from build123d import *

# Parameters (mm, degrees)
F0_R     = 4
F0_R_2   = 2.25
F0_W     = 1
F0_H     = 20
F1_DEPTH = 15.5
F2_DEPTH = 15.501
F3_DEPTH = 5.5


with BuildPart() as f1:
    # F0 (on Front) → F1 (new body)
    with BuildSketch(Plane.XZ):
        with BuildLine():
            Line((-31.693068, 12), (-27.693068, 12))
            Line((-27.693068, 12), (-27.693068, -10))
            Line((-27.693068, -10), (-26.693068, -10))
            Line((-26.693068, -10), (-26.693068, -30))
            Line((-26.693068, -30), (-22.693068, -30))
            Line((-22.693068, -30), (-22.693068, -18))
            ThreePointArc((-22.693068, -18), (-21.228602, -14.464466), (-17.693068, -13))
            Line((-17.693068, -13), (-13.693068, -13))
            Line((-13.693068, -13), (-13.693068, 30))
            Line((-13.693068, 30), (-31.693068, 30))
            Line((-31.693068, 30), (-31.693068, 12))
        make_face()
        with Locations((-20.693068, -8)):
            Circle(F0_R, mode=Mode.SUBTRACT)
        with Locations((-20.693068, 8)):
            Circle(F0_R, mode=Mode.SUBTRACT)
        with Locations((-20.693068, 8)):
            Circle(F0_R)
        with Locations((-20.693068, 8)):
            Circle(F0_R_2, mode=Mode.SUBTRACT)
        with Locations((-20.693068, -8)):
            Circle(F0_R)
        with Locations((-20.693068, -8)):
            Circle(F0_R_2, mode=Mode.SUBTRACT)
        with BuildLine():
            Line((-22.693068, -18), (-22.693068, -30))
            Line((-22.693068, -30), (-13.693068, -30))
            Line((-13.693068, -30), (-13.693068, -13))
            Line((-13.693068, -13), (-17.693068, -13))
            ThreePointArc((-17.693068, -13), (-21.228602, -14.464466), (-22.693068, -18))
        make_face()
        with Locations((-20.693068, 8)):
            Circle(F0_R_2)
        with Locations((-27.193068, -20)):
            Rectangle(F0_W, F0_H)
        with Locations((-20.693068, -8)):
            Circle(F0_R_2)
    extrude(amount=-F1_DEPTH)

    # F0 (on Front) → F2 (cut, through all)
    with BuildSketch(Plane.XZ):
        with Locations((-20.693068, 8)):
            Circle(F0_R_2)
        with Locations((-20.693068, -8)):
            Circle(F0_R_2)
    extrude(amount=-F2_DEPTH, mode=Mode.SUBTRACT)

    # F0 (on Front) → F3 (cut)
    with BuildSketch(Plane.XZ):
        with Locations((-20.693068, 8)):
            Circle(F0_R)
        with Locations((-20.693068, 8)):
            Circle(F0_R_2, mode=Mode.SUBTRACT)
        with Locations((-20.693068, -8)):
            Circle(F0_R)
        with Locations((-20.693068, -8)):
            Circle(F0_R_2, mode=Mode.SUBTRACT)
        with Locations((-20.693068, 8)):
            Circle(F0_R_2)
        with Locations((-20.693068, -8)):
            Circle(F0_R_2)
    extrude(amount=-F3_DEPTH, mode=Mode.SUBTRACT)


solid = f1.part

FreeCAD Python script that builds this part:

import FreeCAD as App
import Part
import Sketcher

V = App.Vector
Q = App.Units.Quantity


def add_polygon(sketch, points):
    """Adds a closed chain of lines whose ends are joined by coincident constraints."""
    first, n = sketch.GeometryCount, len(points)
    for a, b in zip(points, points[1:] + points[:1]):
        sketch.addGeometry(Part.LineSegment(App.Vector(*a, 0), App.Vector(*b, 0)), False)
    for i in range(n):
        sketch.addConstraint(Sketcher.Constraint("Coincident", first + i, 2, first + (i + 1) % n, 1))

doc = App.newDocument("Part")
body = doc.addObject("PartDesign::Body", "Body")

sketch1 = body.newObject("Sketcher::SketchObject", "Sketch")
sketch1.AttachmentSupport = (doc.getObject("XZ_Plane"), [""])
sketch1.MapMode = "FlatFace"
add_polygon(sketch1, [(-31.7, 12), (-27.7, 12), (-27.7, -30), (-13.7, -30), (-13.7, 30), (-31.7, 30)])
sketch1.addConstraint(Sketcher.Constraint("Horizontal", 0))
sketch1.addConstraint(Sketcher.Constraint("Vertical", 1))
sketch1.addConstraint(Sketcher.Constraint("Horizontal", 2))
sketch1.addConstraint(Sketcher.Constraint("Vertical", 3))
sketch1.addConstraint(Sketcher.Constraint("Horizontal", 4))
sketch1.addConstraint(Sketcher.Constraint("Vertical", 5))
sketch1.addConstraint(Sketcher.Constraint("Equal", 4, 5))
sketch1.addConstraint(Sketcher.Constraint("DistanceX", 0, 1, 0, 2, Q("4 mm")))
sketch1.addConstraint(Sketcher.Constraint("DistanceX", 2, 1, 2, 2, Q("14 mm")))
sketch1.addConstraint(Sketcher.Constraint("DistanceY", 1, 2, 1, 1, Q("42 mm")))
sketch1.addConstraint(Sketcher.Constraint("DistanceY", -1, 1, 0, 2, Q("12 mm")))
sketch1.addConstraint(Sketcher.Constraint("DistanceX", 0, 2, -1, 1, Q("27.693068 mm")))
pad1 = body.newObject("PartDesign::Pad", "Pad")
pad1.Profile = sketch1
pad1.Length = 15.5
pad1.Reversed = True

sketch2 = body.newObject("Sketcher::SketchObject", "Sketch001")
sketch2.AttachmentSupport = (doc.getObject("XZ_Plane"), [""])
sketch2.MapMode = "FlatFace"
sketch2.addGeometry(Part.Circle(V(-20.7, 8, 0), V(0, 0, 1), 2.2), False)
sketch2.addGeometry(Part.Circle(V(-20.7, -8, 0), V(0, 0, 1), 2.2), False)
sketch2.addConstraint(Sketcher.Constraint("Equal", 0, 1))
sketch2.addConstraint(Sketcher.Constraint("Symmetric", 0, 3, 1, 3, -1))
sketch2.addConstraint(Sketcher.Constraint("Diameter", 0, Q("4.5 mm")))
sketch2.addConstraint(Sketcher.Constraint("DistanceY", -1, 1, 0, 3, Q("8 mm")))
sketch2.addConstraint(Sketcher.Constraint("DistanceX", 0, 3, -1, 1, Q("20.693068 mm")))
pocket1 = body.newObject("PartDesign::Pocket", "Pocket")
pocket1.Profile = sketch2
pocket1.Type = "ThroughAll"

sketch3 = body.newObject("Sketcher::SketchObject", "Sketch002")
sketch3.AttachmentSupport = (doc.getObject("XZ_Plane"), [""])
sketch3.MapMode = "FlatFace"
sketch3.addGeometry(Part.Circle(V(-20.7, 8, 0), V(0, 0, 1), 4), False)
sketch3.addGeometry(Part.Circle(V(-20.7, -8, 0), V(0, 0, 1), 4), False)
sketch3.addConstraint(Sketcher.Constraint("Equal", 0, 1))
sketch3.addConstraint(Sketcher.Constraint("Symmetric", 0, 3, 1, 3, -1))
sketch3.addConstraint(Sketcher.Constraint("Diameter", 0, Q("8 mm")))
sketch3.addConstraint(Sketcher.Constraint("DistanceY", -1, 1, 0, 3, Q("8 mm")))
sketch3.addConstraint(Sketcher.Constraint("DistanceX", 0, 3, -1, 1, Q("20.693068 mm")))
pocket2 = body.newObject("PartDesign::Pocket", "Pocket001")
pocket2.Profile = sketch3
pocket2.Length = 5.5

doc.recompute()
